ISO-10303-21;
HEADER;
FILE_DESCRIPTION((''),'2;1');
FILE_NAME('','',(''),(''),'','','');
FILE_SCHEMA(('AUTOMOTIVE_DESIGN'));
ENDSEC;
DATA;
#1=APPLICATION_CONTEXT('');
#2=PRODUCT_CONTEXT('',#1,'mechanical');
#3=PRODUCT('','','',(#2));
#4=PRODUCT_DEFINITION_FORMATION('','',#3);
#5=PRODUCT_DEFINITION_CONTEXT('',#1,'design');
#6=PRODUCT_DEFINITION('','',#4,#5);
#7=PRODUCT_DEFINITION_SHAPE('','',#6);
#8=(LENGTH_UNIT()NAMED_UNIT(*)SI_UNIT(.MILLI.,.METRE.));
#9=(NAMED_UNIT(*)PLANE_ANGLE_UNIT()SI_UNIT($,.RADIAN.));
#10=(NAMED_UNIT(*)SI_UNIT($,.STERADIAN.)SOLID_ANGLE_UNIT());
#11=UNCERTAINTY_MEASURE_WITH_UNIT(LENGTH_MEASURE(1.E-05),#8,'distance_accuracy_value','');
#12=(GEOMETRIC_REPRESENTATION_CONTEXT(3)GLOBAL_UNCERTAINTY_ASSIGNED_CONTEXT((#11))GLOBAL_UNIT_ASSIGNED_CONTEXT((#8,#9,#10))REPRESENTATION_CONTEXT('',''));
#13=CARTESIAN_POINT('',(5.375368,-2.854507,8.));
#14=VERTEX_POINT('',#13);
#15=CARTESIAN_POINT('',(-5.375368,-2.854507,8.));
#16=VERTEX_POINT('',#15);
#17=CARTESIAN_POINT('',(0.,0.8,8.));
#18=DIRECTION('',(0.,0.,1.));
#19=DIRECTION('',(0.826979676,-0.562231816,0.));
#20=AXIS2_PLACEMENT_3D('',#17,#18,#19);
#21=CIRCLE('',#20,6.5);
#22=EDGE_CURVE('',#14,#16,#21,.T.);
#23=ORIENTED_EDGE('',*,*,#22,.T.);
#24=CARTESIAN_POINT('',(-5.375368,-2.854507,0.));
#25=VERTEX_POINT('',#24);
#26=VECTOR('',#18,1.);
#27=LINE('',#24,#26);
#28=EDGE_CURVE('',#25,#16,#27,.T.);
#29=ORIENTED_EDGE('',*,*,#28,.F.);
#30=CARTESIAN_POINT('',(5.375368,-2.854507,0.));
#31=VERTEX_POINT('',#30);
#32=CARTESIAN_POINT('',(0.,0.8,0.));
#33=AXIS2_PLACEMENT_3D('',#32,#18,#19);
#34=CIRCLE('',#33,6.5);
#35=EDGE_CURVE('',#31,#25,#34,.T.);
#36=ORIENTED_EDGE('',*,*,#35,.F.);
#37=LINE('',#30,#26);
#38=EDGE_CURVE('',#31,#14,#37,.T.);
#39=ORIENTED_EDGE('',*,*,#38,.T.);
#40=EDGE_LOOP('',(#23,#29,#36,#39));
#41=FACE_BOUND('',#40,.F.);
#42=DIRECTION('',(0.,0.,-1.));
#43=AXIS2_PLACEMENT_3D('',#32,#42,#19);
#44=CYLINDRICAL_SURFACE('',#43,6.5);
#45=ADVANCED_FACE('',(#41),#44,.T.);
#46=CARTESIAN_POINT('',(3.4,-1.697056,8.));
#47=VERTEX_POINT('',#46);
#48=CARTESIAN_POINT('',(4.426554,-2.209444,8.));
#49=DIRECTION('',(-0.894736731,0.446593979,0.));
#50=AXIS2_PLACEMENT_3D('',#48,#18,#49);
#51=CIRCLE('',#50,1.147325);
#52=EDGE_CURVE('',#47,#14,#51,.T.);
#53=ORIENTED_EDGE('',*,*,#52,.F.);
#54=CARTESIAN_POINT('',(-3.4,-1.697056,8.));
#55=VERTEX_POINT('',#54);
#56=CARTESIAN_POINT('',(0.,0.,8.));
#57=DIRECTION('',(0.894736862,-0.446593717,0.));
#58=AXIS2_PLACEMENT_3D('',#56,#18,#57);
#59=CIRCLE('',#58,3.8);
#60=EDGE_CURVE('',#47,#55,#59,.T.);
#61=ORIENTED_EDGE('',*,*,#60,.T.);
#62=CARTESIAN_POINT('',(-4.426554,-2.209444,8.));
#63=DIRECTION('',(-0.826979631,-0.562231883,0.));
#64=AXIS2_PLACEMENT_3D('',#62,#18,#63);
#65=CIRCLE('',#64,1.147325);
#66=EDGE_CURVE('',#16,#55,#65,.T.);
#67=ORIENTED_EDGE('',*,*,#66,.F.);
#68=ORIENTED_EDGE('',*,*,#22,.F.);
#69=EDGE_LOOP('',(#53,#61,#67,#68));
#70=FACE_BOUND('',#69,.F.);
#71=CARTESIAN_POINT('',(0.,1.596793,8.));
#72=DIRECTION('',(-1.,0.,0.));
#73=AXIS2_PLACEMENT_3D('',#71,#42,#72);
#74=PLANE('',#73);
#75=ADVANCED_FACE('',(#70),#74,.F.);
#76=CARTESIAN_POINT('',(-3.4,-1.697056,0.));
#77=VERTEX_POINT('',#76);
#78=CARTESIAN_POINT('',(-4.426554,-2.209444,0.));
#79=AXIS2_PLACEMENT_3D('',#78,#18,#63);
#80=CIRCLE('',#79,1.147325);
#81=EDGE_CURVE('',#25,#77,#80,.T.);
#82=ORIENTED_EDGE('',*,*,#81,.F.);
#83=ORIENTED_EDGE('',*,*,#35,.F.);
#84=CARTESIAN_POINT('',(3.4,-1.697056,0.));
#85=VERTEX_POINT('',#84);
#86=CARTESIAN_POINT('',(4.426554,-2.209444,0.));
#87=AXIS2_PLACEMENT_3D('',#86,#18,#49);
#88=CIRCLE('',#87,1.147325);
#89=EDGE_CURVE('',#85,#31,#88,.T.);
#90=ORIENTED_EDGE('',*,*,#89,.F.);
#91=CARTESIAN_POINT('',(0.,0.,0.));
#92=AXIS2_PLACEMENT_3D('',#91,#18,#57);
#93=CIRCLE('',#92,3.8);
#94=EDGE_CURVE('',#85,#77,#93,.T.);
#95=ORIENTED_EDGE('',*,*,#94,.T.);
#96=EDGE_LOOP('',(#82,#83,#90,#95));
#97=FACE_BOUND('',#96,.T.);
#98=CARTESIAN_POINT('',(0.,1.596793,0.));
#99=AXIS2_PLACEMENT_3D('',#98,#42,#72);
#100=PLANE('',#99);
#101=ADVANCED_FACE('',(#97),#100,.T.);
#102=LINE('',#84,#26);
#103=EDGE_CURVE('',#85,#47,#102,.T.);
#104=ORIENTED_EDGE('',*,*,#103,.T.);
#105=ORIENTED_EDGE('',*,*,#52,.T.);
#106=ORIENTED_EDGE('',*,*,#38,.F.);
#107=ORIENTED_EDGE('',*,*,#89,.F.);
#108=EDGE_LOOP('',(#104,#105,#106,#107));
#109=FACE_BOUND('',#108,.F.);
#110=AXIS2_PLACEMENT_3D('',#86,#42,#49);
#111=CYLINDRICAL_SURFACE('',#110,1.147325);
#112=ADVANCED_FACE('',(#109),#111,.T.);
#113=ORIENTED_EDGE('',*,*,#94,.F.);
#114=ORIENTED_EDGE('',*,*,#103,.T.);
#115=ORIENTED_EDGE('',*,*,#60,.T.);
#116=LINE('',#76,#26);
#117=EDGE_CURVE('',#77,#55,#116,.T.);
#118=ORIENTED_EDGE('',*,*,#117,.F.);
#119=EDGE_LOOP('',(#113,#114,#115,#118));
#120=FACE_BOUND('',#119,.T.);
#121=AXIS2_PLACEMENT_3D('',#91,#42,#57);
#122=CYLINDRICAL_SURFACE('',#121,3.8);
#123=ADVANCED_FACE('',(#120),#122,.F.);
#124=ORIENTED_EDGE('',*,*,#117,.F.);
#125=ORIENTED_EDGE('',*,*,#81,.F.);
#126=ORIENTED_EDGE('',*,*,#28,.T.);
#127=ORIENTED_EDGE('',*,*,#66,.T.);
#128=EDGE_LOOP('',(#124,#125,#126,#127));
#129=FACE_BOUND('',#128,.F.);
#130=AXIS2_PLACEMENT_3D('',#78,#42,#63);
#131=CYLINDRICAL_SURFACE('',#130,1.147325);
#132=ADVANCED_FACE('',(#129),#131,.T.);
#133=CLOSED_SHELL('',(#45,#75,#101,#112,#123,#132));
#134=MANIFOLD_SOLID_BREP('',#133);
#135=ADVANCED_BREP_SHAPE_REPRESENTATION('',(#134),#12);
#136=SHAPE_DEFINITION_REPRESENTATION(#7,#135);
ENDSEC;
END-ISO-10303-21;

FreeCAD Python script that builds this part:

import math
import FreeCAD as App
import Part
import Sketcher

V = App.Vector
Q = App.Units.Quantity

doc = App.newDocument("Part")
params = doc.addObject("Spreadsheet::Sheet", "Params")
for row, (alias, value) in enumerate([
    ("sketch1_radius", "3.8 mm"),
    ("sketch1_radius2", "6.5 mm"),
    ("pad1_length", "8 mm"),
], start=1):
    params.set(f"A{row}", alias)
    params.set(f"B{row}", "=" + value)
    params.setAlias(f"B{row}", alias)

body = doc.addObject("PartDesign::Body", "Body")

# Sketch on XY plane
sketch1 = body.newObject("Sketcher::SketchObject", "Sketch")
sketch1.AttachmentSupport = (doc.getObject("XY_Plane"), [""])
sketch1.MapMode = "FlatFace"
sketch1.addGeometry([
    Part.ArcOfCircle(Part.Circle(V(0, 0, 0), V(0, 0, 1), 3.8), math.radians(-27), math.radians(207)),
    Part.ArcOfCircle(Part.Circle(V(4.4, -2.2, 0), V(0, 0, 1), 1.1), math.radians(153), math.radians(326)),
    Part.ArcOfCircle(Part.Circle(V(0, 0.8, 0), V(0, 0, 1), 6.5), math.radians(-34), math.radians(214)),
    Part.ArcOfCircle(Part.Circle(V(-4.4, -2.2, 0), V(0, 0, 1), 1.1), math.radians(-146), math.radians(27)),
], False)
sketch1.addConstraint([
    Sketcher.Constraint("Tangent", 0, 1, 1, 1),
    Sketcher.Constraint("Tangent", 1, 2, 2, 1),
    Sketcher.Constraint("Tangent", 2, 2, 3, 1),
    Sketcher.Constraint("Tangent", 3, 2, 0, 2),
    Sketcher.Constraint("Coincident", 0, 3, -1, 1),
    Sketcher.Constraint("Equal", 1, 3),
    Sketcher.Constraint("PointOnObject", 2, 3, -2),
    Sketcher.Constraint("Radius", 0, Q("3.8 mm")),
    Sketcher.Constraint("Radius", 2, Q("6.5 mm")),
    Sketcher.Constraint("DistanceY", -1, 1, 2, 3, Q("0.8 mm")),
    Sketcher.Constraint("DistanceX", -1, 1, 0, 1, Q("3.4 mm")),
])
sketch1.setExpression("Constraints[7]", "Params.sketch1_radius")
sketch1.setExpression("Constraints[8]", "Params.sketch1_radius2")
pad1 = body.newObject("PartDesign::Pad", "Pad")
pad1.Profile = sketch1
pad1.setExpression("Length", "Params.pad1_length")

doc.recompute()
